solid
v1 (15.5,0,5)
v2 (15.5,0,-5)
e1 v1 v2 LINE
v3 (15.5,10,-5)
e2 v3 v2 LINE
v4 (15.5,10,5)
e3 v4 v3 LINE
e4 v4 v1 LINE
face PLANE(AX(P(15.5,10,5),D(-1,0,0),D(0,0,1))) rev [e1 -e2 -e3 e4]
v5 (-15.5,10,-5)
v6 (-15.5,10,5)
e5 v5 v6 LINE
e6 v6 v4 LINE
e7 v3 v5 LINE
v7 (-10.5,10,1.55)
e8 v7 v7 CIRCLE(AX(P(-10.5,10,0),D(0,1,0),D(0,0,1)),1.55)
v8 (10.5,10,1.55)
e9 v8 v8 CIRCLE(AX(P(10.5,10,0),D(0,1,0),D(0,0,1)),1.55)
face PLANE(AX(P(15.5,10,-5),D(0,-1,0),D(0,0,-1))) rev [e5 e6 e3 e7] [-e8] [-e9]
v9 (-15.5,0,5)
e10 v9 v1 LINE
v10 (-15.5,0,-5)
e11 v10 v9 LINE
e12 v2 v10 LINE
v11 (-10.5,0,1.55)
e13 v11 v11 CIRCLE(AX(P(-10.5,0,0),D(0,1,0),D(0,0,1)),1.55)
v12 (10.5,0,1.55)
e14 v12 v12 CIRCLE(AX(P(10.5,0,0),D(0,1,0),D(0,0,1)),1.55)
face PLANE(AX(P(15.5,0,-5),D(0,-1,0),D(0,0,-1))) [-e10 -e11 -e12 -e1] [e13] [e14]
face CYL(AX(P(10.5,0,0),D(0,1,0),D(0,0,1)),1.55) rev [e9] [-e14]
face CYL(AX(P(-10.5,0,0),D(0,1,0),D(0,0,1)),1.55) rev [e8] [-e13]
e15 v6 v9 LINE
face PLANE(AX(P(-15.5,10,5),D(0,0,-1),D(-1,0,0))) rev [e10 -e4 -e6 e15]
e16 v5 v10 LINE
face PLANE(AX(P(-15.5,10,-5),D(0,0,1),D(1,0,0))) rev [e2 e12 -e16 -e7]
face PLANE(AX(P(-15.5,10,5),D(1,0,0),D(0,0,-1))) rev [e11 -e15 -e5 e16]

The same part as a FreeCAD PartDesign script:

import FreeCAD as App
import Part
import Sketcher
Q = App.Units.Quantity


def add_polygon(sketch, points):
    """Adds a closed chain of lines whose ends are joined by coincident constraints."""
    first, n = sketch.GeometryCount, len(points)
    for a, b in zip(points, points[1:] + points[:1]):
        sketch.addGeometry(Part.LineSegment(App.Vector(*a, 0), App.Vector(*b, 0)), False)
    for i in range(n):
        sketch.addConstraint(Sketcher.Constraint("Coincident", first + i, 2, first + (i + 1) % n, 1))

doc = App.newDocument("Part")
params = doc.addObject("Spreadsheet::Sheet", "Params")
for row, (alias, value) in enumerate([
    ("sketch1_width", "31 mm"),
    ("sketch1_height", "10 mm"),
    ("pad1_length", "10 mm"),
    ("sketch2_diameter", "3.1 mm"),
], start=1):
    params.set(f"A{row}", alias)
    params.set(f"B{row}", "=" + value)
    params.setAlias(f"B{row}", alias)

body = doc.addObject("PartDesign::Body", "Body")

# Sketch on XZ plane
sketch1 = doc.addObject("Sketcher::SketchObject", "Sketch")
body.addObject(sketch1)
sketch1.AttachmentSupport = (doc.XZ_Plane, [""])
sketch1.MapMode = "FlatFace"
add_polygon(sketch1, [(-16, -5), (-16, 5), (16, 5), (16, -5)])  # lines 0-3
sketch1.addConstraint(Sketcher.Constraint("Vertical", 0))
sketch1.addConstraint(Sketcher.Constraint("Horizontal", 1))
sketch1.addConstraint(Sketcher.Constraint("Vertical", 2))
sketch1.addConstraint(Sketcher.Constraint("Horizontal", 3))
sketch1.addConstraint(Sketcher.Constraint("Symmetric", 0, 2, 2, 2, -1, 1))
sketch1.addConstraint(Sketcher.Constraint("DistanceX", 1, 1, 1, 2, Q("31 mm")))
sketch1.addConstraint(Sketcher.Constraint("DistanceY", 0, 1, 0, 2, Q("10 mm")))
sketch1.setExpression("Constraints[9]", "Params.sketch1_width")
sketch1.setExpression("Constraints[10]", "Params.sketch1_height")
pad1 = doc.addObject("PartDesign::Pad", "Pad")
body.addObject(pad1)
pad1.Profile = sketch1
pad1.setExpression("Length", "Params.pad1_length")
pad1.Reversed = True

# Sketch on XZ plane
sketch2 = doc.addObject("Sketcher::SketchObject", "Sketch001")
body.addObject(sketch2)
sketch2.AttachmentSupport = (doc.XZ_Plane, [""])
sketch2.MapMode = "FlatFace"
sketch2.AttachmentOffset = App.Placement(App.Vector(0, 0, -10), App.Rotation())
sketch2.addGeometry(Part.Circle(App.Vector(-10.5, 0, 0), App.Vector(0, 0, 1), 1.6), False)
sketch2.addGeometry(Part.Circle(App.Vector(10.5, 0, 0), App.Vector(0, 0, 1), 1.6), False)
sketch2.addConstraint(Sketcher.Constraint("Equal", 0, 1))
sketch2.addConstraint(Sketcher.Constraint("Symmetric", 0, 3, 1, 3, -1, 1))
sketch2.addConstraint(Sketcher.Constraint("PointOnObject", 0, 3, -1))
sketch2.addConstraint(Sketcher.Constraint("Diameter", 0, Q("3.1 mm")))
sketch2.addConstraint(Sketcher.Constraint("DistanceX", 0, 3, 1, 3, Q("21 mm")))
sketch2.setExpression("Constraints[3]", "Params.sketch2_diameter")
pocket1 = doc.addObject("PartDesign::Pocket", "Pocket")
body.addObject(pocket1)
pocket1.Profile = sketch2
pocket1.Type = "ThroughAll"
pocket1.Reversed = True

doc.recompute()
